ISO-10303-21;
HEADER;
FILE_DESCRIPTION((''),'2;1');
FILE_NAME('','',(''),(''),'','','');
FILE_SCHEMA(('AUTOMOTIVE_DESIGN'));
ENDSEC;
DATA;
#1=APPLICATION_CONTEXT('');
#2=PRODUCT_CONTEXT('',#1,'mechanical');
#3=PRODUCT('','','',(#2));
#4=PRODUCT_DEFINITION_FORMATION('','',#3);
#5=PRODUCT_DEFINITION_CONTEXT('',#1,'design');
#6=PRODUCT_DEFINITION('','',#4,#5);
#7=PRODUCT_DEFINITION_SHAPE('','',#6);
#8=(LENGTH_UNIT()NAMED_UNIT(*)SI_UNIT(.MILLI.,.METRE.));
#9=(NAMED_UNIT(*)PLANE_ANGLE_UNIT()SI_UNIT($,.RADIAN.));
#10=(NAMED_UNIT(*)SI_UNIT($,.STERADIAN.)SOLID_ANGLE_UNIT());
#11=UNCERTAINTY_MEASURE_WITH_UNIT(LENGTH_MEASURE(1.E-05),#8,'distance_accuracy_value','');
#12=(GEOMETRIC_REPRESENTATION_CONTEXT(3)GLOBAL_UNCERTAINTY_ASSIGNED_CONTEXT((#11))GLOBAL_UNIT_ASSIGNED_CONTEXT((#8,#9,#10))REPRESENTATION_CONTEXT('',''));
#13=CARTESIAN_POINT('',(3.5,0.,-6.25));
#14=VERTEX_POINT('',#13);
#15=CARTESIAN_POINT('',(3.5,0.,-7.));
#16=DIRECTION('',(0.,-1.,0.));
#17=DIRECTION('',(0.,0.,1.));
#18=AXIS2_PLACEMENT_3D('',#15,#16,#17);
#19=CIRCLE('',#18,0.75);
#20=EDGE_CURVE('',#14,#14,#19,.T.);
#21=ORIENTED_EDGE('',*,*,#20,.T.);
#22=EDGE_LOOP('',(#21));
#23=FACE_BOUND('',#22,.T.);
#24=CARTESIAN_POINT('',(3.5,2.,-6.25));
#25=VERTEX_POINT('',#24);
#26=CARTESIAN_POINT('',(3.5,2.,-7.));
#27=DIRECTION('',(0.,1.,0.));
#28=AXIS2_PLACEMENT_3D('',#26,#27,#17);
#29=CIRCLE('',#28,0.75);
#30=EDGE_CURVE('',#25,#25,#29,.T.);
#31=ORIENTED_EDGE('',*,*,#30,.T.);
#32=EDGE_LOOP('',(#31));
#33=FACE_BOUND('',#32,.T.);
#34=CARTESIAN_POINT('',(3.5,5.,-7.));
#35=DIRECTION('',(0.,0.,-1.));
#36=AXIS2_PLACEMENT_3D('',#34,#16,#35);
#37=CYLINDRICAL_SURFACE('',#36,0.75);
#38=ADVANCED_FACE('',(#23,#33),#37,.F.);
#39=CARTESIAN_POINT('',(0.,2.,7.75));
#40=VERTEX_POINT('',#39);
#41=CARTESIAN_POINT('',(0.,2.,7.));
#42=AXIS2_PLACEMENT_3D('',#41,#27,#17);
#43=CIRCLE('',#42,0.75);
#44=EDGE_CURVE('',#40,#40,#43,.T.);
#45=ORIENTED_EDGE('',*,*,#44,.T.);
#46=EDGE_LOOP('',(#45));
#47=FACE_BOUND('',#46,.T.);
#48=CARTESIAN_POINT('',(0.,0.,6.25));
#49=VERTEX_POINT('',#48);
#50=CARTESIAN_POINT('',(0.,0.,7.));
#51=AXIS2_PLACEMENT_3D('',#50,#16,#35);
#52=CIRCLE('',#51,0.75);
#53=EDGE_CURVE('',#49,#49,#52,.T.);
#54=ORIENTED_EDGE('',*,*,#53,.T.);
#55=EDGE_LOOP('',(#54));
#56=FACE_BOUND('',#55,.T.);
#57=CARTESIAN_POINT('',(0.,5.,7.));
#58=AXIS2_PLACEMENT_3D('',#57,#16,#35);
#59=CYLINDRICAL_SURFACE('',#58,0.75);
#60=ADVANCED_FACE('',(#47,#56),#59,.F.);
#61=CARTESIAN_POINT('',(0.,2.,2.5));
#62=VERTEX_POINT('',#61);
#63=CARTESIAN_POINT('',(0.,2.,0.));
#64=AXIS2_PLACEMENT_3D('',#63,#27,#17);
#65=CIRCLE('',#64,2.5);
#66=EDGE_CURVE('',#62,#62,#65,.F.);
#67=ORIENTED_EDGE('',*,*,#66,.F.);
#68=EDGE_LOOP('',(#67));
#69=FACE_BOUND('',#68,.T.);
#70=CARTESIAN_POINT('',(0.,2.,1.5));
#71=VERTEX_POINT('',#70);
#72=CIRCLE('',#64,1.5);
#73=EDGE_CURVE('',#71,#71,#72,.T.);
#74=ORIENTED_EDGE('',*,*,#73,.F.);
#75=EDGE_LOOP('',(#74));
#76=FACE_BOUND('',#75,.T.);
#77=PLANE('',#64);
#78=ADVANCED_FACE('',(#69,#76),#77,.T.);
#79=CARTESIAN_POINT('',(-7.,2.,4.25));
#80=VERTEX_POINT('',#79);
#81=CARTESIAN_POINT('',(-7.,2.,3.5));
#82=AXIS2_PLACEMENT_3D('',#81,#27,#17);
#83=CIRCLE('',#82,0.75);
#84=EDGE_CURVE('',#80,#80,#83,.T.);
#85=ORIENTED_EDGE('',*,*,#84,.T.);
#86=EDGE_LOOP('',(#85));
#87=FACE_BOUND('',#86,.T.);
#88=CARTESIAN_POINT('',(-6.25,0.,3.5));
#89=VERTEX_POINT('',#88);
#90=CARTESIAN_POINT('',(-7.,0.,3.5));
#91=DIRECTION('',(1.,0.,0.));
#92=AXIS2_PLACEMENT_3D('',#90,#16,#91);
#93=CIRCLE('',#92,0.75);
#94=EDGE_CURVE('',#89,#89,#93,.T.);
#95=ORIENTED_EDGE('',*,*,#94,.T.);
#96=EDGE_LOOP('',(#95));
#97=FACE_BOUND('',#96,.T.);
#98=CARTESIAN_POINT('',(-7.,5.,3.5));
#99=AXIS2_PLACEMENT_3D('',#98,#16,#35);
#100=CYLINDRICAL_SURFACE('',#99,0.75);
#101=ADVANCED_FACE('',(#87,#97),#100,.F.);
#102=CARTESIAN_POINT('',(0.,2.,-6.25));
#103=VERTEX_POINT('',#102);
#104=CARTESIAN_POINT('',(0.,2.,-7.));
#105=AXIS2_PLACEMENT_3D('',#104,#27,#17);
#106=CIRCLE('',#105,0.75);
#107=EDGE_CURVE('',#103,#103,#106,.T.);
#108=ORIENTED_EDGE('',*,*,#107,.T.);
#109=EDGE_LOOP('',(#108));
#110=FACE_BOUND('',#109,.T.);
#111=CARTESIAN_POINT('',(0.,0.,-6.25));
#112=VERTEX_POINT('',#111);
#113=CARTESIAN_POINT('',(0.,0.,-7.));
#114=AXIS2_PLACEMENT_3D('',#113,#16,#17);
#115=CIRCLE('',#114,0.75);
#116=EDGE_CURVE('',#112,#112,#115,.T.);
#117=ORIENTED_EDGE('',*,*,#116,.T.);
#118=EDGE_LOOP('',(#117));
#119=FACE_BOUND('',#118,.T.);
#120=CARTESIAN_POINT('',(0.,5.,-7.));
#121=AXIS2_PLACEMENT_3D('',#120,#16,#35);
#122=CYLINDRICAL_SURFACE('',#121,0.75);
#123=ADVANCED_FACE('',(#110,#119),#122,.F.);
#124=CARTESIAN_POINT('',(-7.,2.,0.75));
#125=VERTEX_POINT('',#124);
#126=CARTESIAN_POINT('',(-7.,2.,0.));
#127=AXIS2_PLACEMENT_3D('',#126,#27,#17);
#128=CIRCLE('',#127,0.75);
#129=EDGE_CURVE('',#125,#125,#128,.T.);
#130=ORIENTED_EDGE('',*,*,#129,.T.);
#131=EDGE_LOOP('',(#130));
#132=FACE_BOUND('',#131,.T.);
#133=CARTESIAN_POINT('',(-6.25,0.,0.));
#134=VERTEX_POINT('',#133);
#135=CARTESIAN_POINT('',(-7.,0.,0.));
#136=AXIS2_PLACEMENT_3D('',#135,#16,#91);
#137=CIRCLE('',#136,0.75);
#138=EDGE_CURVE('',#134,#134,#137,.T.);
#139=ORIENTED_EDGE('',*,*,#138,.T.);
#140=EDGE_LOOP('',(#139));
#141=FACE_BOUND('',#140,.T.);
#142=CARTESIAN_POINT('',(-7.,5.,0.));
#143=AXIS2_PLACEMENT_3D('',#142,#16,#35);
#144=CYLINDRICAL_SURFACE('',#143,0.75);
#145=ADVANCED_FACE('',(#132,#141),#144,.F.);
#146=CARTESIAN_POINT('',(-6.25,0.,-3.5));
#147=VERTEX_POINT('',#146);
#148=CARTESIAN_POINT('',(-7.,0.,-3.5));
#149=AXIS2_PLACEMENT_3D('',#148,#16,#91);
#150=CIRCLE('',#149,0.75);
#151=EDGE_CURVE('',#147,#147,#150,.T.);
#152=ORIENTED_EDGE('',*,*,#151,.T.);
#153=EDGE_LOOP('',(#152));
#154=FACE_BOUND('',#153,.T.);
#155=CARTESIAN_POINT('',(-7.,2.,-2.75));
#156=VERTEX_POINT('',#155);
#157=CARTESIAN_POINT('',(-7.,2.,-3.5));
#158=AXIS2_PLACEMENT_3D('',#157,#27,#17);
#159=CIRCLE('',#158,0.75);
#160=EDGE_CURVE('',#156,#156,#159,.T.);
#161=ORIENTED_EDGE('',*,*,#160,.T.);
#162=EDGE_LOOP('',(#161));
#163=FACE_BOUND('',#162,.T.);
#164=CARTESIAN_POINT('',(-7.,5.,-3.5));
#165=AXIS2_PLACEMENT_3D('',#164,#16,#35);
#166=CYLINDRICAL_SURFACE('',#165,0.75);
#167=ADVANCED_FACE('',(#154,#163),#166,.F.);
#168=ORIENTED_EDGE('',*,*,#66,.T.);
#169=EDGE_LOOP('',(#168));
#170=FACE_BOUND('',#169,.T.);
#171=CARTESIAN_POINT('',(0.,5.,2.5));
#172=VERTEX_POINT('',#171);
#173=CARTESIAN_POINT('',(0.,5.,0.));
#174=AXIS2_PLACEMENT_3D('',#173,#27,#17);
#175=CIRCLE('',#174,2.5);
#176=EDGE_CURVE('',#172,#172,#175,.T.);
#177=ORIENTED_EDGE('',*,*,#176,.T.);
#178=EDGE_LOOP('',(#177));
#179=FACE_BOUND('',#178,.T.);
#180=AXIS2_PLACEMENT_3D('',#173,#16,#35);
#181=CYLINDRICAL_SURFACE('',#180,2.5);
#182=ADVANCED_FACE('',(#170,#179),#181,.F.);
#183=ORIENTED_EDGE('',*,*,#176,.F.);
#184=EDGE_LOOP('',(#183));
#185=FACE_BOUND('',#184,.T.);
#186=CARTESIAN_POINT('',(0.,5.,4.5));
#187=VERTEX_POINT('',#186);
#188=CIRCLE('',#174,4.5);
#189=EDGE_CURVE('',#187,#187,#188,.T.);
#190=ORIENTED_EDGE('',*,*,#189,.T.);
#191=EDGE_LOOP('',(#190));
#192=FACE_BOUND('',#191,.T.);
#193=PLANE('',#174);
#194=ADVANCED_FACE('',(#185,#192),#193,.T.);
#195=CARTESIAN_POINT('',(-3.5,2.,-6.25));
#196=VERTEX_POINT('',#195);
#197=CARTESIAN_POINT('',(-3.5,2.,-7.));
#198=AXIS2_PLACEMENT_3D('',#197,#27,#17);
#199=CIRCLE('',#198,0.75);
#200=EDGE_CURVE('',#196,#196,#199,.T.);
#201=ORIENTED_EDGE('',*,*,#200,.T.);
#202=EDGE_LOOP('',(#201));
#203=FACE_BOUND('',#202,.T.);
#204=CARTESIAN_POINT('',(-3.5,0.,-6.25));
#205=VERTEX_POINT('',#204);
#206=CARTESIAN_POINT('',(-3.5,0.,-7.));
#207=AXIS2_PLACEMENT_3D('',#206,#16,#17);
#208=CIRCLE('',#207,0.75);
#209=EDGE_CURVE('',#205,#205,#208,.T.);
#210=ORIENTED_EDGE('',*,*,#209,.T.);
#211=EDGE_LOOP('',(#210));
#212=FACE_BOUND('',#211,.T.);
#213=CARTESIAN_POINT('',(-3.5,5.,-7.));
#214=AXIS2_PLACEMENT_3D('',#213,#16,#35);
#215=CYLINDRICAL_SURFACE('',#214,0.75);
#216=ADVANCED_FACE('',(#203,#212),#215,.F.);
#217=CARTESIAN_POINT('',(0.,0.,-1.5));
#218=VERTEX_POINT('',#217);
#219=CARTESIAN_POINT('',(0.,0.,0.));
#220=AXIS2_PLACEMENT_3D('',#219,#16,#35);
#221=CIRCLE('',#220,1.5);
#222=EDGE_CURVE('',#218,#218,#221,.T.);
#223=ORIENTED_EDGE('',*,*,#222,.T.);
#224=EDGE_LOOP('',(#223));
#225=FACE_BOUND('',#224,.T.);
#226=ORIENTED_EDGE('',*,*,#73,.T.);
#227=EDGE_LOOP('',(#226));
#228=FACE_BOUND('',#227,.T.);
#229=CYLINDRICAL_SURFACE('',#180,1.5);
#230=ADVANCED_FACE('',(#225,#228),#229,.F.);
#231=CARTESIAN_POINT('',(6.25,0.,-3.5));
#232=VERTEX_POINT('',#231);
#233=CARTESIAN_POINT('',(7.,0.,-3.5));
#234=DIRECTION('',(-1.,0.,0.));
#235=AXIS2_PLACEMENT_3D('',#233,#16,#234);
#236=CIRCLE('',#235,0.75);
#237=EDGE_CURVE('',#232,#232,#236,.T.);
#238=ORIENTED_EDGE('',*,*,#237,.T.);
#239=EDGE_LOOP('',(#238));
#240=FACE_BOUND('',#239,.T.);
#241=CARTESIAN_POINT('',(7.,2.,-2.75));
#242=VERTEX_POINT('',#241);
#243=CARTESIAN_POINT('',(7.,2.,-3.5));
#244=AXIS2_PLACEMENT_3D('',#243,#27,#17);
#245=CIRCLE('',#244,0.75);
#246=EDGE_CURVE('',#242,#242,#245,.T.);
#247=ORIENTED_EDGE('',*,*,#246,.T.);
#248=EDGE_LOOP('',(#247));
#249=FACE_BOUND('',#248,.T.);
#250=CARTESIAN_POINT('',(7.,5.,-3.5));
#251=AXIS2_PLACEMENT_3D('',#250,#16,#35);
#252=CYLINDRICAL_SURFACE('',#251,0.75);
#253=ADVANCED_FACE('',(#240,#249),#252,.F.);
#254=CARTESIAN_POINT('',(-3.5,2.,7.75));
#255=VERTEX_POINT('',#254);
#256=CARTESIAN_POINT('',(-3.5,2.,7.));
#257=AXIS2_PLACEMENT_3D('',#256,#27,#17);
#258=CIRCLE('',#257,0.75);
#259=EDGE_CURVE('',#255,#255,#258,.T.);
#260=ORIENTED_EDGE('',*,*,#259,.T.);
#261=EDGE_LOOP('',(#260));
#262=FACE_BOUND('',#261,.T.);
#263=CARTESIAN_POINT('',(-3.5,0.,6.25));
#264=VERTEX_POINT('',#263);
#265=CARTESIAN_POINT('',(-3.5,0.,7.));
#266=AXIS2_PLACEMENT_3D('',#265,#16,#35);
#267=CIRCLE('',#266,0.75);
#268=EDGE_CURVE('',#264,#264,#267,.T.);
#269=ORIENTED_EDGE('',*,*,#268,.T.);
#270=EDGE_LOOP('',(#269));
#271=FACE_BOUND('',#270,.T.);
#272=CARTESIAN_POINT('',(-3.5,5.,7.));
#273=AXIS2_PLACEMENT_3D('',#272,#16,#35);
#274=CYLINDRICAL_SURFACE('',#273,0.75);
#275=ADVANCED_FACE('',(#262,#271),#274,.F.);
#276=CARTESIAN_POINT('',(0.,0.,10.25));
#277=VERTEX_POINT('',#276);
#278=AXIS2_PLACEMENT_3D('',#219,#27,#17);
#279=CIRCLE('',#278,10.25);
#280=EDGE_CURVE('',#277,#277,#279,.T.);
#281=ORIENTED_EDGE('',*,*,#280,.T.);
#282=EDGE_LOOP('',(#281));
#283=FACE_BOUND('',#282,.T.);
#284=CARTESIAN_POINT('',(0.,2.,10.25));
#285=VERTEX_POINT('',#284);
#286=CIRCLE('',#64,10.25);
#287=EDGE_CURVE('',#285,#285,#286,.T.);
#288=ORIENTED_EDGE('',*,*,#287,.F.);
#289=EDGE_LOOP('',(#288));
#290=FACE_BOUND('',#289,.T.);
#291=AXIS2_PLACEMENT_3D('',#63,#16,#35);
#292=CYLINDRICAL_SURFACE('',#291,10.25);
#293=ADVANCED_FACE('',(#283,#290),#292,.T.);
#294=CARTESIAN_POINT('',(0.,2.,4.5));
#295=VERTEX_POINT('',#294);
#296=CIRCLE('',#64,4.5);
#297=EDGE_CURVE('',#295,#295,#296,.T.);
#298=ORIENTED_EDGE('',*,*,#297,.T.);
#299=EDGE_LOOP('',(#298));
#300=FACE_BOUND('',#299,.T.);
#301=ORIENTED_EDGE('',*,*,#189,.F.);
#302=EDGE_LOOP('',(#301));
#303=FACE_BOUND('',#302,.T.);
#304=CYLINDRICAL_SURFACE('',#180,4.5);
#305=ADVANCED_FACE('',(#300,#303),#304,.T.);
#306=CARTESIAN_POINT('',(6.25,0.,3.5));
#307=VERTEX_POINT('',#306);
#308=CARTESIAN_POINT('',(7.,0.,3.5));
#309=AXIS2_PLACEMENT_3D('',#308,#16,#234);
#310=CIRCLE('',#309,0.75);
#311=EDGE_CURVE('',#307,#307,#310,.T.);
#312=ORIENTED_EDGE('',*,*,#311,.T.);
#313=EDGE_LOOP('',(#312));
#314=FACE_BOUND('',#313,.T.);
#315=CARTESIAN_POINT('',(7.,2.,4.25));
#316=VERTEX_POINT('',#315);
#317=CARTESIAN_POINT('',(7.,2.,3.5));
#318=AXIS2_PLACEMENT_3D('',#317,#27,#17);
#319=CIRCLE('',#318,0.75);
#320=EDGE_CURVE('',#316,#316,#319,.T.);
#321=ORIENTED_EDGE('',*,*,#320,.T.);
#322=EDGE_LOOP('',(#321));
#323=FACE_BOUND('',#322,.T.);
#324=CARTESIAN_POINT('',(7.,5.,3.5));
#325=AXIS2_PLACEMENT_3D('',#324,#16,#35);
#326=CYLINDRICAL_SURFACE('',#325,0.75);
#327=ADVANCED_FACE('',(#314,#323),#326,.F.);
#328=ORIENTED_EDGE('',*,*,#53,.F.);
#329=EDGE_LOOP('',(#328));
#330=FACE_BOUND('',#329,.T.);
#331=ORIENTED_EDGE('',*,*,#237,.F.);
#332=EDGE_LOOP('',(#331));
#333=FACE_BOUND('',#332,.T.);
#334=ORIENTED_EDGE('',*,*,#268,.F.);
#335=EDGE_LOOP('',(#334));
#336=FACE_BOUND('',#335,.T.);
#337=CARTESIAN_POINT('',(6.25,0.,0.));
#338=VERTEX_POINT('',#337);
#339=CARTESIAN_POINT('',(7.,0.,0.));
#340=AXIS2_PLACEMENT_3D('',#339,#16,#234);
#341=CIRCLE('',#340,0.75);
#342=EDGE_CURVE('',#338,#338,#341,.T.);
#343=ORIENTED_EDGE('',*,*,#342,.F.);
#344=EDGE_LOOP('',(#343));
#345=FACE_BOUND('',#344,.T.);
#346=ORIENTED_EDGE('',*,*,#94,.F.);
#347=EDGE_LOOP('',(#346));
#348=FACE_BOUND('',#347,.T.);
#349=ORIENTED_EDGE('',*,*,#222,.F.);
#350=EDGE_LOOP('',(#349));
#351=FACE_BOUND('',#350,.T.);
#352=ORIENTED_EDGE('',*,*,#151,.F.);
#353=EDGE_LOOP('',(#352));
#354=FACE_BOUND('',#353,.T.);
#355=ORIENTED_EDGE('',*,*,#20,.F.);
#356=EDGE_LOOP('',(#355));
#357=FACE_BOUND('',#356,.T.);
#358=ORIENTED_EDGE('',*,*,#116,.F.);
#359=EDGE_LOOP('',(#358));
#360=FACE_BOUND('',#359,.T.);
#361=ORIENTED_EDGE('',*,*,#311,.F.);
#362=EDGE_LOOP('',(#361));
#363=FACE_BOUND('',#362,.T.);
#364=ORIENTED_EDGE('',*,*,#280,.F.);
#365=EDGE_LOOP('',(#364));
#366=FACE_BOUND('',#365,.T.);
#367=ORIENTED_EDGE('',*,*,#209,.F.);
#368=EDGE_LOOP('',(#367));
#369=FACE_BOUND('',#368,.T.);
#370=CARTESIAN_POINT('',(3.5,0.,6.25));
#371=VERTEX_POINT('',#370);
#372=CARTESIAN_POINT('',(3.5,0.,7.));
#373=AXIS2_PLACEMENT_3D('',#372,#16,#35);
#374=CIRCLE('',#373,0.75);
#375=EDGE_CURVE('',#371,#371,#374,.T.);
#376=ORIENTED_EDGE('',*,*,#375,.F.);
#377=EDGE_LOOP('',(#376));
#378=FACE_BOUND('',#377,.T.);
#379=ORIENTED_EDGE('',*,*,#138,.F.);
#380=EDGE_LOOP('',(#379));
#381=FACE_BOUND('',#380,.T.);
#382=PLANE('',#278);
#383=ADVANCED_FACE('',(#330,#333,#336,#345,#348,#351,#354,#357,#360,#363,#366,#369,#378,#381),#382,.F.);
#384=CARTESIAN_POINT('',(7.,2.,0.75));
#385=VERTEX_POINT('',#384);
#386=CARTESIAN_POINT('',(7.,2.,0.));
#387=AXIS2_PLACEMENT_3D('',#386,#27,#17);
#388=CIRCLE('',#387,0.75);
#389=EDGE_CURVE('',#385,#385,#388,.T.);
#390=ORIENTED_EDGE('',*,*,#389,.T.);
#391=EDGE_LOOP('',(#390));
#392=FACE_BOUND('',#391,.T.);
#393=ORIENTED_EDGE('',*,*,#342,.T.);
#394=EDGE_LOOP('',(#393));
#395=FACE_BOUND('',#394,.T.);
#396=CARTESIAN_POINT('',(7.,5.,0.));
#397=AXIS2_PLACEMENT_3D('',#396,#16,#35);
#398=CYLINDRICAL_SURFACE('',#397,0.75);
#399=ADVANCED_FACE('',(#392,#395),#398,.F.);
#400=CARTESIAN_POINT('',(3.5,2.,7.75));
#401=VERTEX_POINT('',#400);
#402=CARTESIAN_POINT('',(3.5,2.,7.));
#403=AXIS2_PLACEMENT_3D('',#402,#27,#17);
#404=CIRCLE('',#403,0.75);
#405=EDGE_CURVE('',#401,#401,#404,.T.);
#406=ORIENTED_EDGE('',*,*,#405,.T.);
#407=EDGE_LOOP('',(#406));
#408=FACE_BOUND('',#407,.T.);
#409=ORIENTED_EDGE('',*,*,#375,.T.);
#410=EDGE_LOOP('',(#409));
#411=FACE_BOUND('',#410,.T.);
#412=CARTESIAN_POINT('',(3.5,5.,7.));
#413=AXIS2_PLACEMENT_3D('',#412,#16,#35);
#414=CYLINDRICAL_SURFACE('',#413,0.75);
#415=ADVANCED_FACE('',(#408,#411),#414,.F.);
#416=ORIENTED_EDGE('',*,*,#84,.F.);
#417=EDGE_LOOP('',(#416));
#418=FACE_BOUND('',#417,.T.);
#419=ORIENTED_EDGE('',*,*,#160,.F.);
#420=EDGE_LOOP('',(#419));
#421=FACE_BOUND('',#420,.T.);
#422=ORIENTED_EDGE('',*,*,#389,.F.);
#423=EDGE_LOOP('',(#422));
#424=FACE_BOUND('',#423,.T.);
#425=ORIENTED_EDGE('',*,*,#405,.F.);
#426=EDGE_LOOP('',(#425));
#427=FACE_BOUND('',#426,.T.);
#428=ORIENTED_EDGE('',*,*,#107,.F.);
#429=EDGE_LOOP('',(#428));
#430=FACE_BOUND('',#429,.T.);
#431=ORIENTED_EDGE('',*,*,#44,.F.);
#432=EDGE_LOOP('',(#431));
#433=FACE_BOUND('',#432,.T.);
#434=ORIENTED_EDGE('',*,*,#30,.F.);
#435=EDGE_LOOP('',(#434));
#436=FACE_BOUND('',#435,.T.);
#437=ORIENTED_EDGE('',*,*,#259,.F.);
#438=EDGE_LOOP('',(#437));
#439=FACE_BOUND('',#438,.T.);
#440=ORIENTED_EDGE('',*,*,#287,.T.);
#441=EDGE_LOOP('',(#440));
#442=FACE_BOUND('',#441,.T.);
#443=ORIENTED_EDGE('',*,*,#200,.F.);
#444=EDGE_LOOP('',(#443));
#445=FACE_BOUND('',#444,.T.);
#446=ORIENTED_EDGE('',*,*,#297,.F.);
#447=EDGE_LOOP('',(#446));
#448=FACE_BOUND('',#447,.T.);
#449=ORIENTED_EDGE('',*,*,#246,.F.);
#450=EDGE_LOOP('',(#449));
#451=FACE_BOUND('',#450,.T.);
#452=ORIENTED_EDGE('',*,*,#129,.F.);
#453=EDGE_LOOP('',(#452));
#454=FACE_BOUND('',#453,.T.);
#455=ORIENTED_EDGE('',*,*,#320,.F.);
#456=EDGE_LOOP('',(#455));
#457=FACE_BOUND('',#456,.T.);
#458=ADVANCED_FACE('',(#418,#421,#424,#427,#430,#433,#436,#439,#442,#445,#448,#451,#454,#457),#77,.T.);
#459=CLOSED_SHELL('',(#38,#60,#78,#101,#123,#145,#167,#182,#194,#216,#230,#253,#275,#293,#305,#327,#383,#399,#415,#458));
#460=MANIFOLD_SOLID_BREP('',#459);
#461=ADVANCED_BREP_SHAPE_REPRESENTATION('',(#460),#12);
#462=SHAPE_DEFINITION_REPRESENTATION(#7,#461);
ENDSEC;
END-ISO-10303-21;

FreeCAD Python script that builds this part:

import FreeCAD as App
import Part
import Sketcher
Q = App.Units.Quantity

doc = App.newDocument("Part")
body = doc.addObject("PartDesign::Body", "Body")

sketch1 = body.newObject("Sketcher::SketchObject", "Sketch")
sketch1.AttachmentSupport = (doc.getObject("XZ_Plane"), [""])
sketch1.MapMode = "FlatFace"
sketch1.addGeometry(Part.Circle(App.Vector(0, 0, 0), App.Vector(0, 0, 1), 10), False)
sketch1.addConstraint([
    Sketcher.Constraint("Coincident", 0, 3, -1, 1),
    Sketcher.Constraint("Diameter", 0, Q("20.5 mm")),
])
pad1 = body.newObject("PartDesign::Pad", "Pad")
pad1.Profile = sketch1
pad1.Length = 2
pad1.Reversed = True

sketch2 = body.newObject("Sketcher::SketchObject", "Sketch001")
sketch2.AttachmentSupport = (doc.getObject("XZ_Plane"), [""])
sketch2.MapMode = "FlatFace"
sketch2.AttachmentOffset = App.Placement(App.Vector(0, 0, -2), App.Rotation())
sketch2.addGeometry([
    Part.Circle(App.Vector(0, 0, 0), App.Vector(0, 0, 1), 4.5),
    Part.Circle(App.Vector(0, 0, 0), App.Vector(0, 0, 1), 2.5),
], False)
sketch2.addConstraint([
    Sketcher.Constraint("Coincident", 0, 3, -1, 1),
    Sketcher.Constraint("Coincident", 1, 3, -1, 1),
    Sketcher.Constraint("Diameter", 0, Q("9 mm")),
    Sketcher.Constraint("Diameter", 1, Q("5 mm")),
])
pad2 = body.newObject("PartDesign::Pad", "Pad001")
pad2.Profile = sketch2
pad2.Length = 3
pad2.Reversed = True

sketch3 = body.newObject("Sketcher::SketchObject", "Sketch002")
sketch3.AttachmentSupport = (doc.getObject("XZ_Plane"), [""])
sketch3.MapMode = "FlatFace"
sketch3.addGeometry(Part.Circle(App.Vector(0, 0, 0), App.Vector(0, 0, 1), 1.5), False)
sketch3.addConstraint([
    Sketcher.Constraint("Coincident", 0, 3, -1, 1),
    Sketcher.Constraint("Diameter", 0, Q("3 mm")),
])
pocket1 = body.newObject("PartDesign::Pocket", "Pocket")
pocket1.Profile = sketch3
pocket1.Type = "ThroughAll"

sketch4 = body.newObject("Sketcher::SketchObject", "Sketch003")
sketch4.AttachmentSupport = (doc.getObject("XZ_Plane"), [""])
sketch4.MapMode = "FlatFace"
sketch4.addGeometry([
    Part.Circle(App.Vector(0, 7, 0), App.Vector(0, 0, 1), 0.8),
    Part.Circle(App.Vector(-3.5, 7, 0), App.Vector(0, 0, 1), 0.8),
    Part.Circle(App.Vector(3.5, 7, 0), App.Vector(0, 0, 1), 0.8),
], False)
sketch4.addConstraint([
    Sketcher.Constraint("Equal", 0, 1),
    Sketcher.Constraint("Equal", 1, 2),
    Sketcher.Constraint("Symmetric", 1, 3, 2, 3, -2),
    Sketcher.Constraint("PointOnObject", 0, 3, -2),
    Sketcher.Constraint("Horizontal", 0, 3, 1, 3),
    Sketcher.Constraint("Diameter", 0, Q("1.5 mm")),
    Sketcher.Constraint("DistanceY", -1, 1, 0, 3, Q("7 mm")),
    Sketcher.Constraint("DistanceX", 1, 3, 2, 3, Q("7 mm")),
])
pocket2 = body.newObject("PartDesign::Pocket", "Pocket001")
pocket2.Profile = sketch4
pocket2.Type = "ThroughAll"
doc.recompute()

polarpattern = body.newObject("PartDesign::PolarPattern", "PolarPattern")
polarpattern.Originals = [pocket2]
polarpattern.Axis = (doc.getObject("Y_Axis"), [""])
polarpattern.Angle = 360
polarpattern.Occurrences = 4
body.Tip = polarpattern

doc.recompute()
